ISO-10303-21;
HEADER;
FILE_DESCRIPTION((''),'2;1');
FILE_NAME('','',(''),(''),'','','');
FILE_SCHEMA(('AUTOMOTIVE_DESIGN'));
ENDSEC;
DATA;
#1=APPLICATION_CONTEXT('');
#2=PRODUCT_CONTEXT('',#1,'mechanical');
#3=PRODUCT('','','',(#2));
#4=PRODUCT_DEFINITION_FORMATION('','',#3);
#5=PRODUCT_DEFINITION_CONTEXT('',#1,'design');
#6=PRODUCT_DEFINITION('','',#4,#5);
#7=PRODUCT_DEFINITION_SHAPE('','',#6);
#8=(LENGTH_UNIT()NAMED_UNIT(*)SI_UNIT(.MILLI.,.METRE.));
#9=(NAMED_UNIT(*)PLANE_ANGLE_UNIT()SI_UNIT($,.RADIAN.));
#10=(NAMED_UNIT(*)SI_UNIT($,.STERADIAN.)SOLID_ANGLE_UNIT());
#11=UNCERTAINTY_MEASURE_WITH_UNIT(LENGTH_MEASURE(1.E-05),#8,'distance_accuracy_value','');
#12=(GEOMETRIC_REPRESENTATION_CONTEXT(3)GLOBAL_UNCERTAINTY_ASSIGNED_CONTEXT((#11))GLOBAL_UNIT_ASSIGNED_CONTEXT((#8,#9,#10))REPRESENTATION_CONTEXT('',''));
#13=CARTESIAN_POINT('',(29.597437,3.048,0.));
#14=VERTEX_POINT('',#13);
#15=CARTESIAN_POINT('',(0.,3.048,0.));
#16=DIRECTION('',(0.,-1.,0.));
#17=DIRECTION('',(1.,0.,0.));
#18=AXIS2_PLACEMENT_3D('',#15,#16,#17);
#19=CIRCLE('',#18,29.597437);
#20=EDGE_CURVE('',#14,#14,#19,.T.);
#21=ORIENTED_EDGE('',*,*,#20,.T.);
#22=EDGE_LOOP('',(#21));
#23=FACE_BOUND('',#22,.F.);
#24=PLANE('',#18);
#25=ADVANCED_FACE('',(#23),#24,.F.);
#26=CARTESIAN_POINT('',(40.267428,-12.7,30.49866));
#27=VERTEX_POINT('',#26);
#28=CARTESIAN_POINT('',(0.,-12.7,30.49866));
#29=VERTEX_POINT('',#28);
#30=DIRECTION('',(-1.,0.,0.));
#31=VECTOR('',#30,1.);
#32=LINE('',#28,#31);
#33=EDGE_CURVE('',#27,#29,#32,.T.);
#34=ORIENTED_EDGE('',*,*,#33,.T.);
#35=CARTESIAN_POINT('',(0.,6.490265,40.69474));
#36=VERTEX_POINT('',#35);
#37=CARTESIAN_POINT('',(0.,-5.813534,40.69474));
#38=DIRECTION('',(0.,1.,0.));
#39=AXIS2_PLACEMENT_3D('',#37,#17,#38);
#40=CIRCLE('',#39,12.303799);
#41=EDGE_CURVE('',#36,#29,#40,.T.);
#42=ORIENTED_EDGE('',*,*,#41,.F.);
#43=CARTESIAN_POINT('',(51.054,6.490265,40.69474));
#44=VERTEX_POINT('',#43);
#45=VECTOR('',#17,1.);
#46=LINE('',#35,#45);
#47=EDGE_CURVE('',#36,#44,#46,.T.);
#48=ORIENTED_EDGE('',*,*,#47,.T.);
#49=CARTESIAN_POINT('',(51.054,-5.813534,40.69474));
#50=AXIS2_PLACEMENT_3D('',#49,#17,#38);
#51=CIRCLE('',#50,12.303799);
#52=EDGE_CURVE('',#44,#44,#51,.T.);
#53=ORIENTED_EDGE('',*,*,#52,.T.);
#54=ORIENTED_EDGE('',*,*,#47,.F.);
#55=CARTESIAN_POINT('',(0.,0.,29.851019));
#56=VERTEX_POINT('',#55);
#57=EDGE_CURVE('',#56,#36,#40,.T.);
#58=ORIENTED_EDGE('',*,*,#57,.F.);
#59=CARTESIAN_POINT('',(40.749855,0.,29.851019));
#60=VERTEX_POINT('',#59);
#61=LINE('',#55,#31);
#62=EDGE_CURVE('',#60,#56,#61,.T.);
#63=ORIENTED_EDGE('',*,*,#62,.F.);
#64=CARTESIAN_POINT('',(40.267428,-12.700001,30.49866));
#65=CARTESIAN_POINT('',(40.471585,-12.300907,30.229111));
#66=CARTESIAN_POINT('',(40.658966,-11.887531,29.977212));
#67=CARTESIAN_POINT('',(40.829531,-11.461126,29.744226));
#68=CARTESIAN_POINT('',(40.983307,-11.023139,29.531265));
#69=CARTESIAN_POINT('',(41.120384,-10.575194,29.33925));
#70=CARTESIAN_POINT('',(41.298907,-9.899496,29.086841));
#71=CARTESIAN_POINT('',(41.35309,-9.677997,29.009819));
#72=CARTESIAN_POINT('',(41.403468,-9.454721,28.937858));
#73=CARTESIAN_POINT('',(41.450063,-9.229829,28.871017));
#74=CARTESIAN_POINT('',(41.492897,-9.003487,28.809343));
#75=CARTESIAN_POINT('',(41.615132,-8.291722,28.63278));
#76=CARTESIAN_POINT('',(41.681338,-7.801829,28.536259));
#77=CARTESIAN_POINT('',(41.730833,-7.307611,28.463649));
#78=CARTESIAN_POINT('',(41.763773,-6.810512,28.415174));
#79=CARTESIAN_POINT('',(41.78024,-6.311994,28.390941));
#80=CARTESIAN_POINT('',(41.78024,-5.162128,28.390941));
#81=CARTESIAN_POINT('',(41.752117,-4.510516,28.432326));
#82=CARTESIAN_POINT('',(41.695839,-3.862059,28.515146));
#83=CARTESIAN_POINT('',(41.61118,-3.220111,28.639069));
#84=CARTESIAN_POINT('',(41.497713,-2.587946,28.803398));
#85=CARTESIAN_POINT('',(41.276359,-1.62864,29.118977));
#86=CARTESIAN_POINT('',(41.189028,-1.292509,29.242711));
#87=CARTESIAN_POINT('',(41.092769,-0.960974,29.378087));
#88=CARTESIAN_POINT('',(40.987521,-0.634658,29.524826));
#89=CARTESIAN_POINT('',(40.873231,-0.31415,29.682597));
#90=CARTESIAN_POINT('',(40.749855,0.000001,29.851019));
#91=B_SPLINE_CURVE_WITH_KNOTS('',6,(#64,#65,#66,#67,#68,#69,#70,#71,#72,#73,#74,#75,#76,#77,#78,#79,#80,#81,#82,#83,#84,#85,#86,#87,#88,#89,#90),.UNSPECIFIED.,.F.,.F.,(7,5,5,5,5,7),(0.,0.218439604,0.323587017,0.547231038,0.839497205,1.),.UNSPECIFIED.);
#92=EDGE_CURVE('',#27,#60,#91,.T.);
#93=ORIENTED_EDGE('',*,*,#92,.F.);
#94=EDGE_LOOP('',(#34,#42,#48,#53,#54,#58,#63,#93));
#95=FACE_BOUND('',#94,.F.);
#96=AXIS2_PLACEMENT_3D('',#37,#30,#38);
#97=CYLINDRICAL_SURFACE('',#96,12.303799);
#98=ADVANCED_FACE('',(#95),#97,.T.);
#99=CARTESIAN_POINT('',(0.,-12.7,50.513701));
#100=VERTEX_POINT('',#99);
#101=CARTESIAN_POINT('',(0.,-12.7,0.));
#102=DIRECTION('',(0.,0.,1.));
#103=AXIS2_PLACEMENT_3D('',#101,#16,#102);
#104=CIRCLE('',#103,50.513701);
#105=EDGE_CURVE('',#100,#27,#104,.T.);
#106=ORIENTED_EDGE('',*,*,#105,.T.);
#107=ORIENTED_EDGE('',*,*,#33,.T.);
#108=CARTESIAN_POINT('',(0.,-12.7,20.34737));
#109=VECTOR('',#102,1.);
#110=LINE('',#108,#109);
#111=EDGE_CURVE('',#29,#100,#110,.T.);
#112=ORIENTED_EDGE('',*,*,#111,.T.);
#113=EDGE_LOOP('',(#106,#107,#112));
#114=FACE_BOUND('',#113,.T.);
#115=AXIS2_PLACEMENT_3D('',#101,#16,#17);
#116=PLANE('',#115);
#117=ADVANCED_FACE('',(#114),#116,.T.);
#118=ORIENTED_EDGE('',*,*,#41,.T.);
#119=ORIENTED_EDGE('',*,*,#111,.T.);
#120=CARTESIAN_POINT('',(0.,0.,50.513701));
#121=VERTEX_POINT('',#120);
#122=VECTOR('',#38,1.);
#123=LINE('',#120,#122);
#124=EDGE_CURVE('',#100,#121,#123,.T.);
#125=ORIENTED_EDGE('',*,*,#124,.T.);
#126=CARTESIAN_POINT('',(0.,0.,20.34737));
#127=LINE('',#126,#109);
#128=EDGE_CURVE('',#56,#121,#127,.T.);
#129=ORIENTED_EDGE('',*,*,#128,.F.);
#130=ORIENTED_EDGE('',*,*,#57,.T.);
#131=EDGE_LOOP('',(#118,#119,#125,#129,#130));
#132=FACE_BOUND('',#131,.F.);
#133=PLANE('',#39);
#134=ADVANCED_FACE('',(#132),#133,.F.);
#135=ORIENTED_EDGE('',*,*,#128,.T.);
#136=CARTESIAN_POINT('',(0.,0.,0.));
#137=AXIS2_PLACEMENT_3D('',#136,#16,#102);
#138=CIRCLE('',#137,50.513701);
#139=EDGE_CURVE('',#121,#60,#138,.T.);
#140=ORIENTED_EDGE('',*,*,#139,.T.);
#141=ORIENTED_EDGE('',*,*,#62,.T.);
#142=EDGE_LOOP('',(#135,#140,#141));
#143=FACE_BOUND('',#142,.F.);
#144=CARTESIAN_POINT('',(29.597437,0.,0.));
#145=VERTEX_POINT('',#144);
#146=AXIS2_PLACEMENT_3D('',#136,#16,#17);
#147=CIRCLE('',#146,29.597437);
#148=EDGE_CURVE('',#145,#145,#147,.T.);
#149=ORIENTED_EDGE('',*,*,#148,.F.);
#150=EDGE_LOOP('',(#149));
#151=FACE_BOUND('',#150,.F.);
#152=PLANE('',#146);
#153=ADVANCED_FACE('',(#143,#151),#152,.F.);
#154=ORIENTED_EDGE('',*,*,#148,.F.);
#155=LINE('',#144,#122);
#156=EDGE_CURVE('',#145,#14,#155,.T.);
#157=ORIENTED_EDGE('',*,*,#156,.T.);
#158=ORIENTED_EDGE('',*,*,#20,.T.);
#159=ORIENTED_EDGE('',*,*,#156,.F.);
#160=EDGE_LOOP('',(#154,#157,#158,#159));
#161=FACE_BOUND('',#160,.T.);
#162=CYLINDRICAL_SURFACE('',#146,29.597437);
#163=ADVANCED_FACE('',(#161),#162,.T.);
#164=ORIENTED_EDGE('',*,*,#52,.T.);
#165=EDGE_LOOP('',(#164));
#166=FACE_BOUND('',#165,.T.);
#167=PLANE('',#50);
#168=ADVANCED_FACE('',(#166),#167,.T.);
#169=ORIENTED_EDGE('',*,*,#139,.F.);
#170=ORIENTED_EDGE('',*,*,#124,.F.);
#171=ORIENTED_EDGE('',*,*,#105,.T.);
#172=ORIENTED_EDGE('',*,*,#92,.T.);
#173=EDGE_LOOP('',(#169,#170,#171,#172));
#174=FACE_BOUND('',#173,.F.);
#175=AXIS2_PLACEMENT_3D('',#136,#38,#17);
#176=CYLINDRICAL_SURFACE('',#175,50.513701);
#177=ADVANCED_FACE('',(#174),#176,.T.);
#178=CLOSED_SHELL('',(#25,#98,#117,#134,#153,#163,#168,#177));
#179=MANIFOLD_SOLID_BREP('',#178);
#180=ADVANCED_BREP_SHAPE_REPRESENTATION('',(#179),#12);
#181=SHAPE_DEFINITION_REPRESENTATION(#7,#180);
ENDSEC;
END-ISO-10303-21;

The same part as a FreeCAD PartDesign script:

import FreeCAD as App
import Part
import Sketcher
from FreeCAD import Vector
Q = App.Units.Quantity

doc = App.newDocument("Part")
body = doc.addObject("PartDesign::Body", "Body")

sketch1 = body.newObject("Sketcher::SketchObject", "Sketch")
sketch1.AttachmentSupport = (doc.getObject("XZ_Plane"), [""])
sketch1.MapMode = "FlatFace"
sketch1.addGeometry(Part.Circle(Vector(0, 0, 0), Vector(0, 0, 1), 51), False)
sketch1.addConstraint(Sketcher.Constraint("Coincident", 0, 3, -1, 1))
sketch1.addConstraint(Sketcher.Constraint("Diameter", 0, 101.027402))
pad1 = body.newObject("PartDesign::Pad", "Pad")
pad1.Profile = sketch1
pad1.Length = Q("0.5 in")

sketch2 = body.newObject("Sketcher::SketchObject", "Sketch001")
sketch2.AttachmentSupport = (doc.getObject("YZ_Plane"), [""])
sketch2.MapMode = "FlatFace"
sketch2.addGeometry(Part.Circle(Vector(-6, 41, 0), Vector(0, 0, 1), 12), False)
sketch2.addConstraint(Sketcher.Constraint("Diameter", 0, 24.607598))
sketch2.addConstraint(Sketcher.Constraint("DistanceY", -1, 1, 0, 3, 40.69474))
sketch2.addConstraint(Sketcher.Constraint("DistanceX", 0, 3, -1, 1, 5.813534))
pad2 = body.newObject("PartDesign::Pad", "Pad001")
pad2.Profile = sketch2
pad2.Length = Q("2.01 in")

sketch3 = body.newObject("Sketcher::SketchObject", "Sketch002")
sketch3.AttachmentSupport = (doc.getObject("XZ_Plane"), [""])
sketch3.MapMode = "FlatFace"
sketch3.addGeometry(Part.Circle(Vector(0, 0, 0), Vector(0, 0, 1), 30), False)
sketch3.addConstraint(Sketcher.Constraint("Coincident", 0, 3, -1, 1))
sketch3.addConstraint(Sketcher.Constraint("Diameter", 0, 59.194874))
pad3 = body.newObject("PartDesign::Pad", "Pad002")
pad3.Profile = sketch3
pad3.Length = Q("0.12 in")
pad3.Reversed = True

doc.recompute()
